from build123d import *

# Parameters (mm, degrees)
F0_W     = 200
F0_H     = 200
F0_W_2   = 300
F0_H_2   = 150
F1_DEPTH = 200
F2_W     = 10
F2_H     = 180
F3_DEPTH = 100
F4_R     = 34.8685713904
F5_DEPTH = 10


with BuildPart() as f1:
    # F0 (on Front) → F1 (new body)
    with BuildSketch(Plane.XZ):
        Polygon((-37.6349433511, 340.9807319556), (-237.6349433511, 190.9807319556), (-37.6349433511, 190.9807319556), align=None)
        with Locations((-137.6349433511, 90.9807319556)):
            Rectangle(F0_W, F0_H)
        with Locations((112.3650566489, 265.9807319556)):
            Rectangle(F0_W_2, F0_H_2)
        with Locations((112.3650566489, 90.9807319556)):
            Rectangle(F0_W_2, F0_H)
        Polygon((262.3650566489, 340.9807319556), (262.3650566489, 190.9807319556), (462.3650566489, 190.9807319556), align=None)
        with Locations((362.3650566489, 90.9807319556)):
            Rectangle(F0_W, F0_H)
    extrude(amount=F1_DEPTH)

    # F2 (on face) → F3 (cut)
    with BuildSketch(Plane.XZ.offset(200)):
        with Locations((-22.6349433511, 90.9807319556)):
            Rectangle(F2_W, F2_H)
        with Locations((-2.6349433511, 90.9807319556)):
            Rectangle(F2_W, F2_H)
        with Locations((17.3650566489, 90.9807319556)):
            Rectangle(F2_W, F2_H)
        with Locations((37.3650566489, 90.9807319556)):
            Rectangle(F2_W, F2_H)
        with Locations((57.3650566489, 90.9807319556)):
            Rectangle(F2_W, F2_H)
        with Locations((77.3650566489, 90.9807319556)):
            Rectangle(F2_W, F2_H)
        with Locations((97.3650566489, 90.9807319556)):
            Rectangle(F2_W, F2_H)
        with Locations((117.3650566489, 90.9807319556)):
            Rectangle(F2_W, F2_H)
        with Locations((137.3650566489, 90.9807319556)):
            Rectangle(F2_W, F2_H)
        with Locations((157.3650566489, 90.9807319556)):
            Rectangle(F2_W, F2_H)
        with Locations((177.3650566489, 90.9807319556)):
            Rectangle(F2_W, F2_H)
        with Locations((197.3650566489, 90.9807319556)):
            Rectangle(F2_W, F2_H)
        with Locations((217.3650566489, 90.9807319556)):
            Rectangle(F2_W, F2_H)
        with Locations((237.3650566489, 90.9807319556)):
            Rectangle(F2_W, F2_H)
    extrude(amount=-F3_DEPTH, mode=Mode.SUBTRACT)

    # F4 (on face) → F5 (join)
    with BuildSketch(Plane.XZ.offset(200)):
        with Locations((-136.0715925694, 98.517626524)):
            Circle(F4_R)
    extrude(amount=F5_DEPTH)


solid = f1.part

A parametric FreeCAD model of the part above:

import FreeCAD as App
import Part
import Sketcher

V = App.Vector
Q = App.Units.Quantity


def add_polygon(sketch, points):
    """Adds a closed chain of lines whose ends are joined by coincident constraints."""
    first, n = sketch.GeometryCount, len(points)
    for a, b in zip(points, points[1:] + points[:1]):
        sketch.addGeometry(Part.LineSegment(App.Vector(*a, 0), App.Vector(*b, 0)), False)
    for i in range(n):
        sketch.addConstraint(Sketcher.Constraint("Coincident", first + i, 2, first + (i + 1) % n, 1))

doc = App.newDocument("Part")
body = doc.addObject("PartDesign::Body", "Body")

# Sketch on XZ plane
sketch1 = body.newObject("Sketcher::SketchObject", "Sketch")
sketch1.AttachmentSupport = (doc.getObject("XZ_Plane"), [""])
sketch1.MapMode = "FlatFace"
add_polygon(sketch1, [(-38, 341), (-238, 191), (-238, -9), (462, -9), (462, 191), (262, 341)])  # lines 0-5
sketch1.addConstraint([
    Sketcher.Constraint("Vertical", 1),
    Sketcher.Constraint("Horizontal", 2),
    Sketcher.Constraint("Vertical", 3),
    Sketcher.Constraint("Horizontal", 5),
    Sketcher.Constraint("Horizontal", 0, 2, 3, 2),
    Sketcher.Constraint("Equal", 0, 4),
    Sketcher.Constraint("DistanceX", 2, 1, 2, 2, Q("700 mm")),
    Sketcher.Constraint("DistanceX", 5, 2, 5, 1, Q("300 mm")),
    Sketcher.Constraint("DistanceY", 1, 2, 1, 1, Q("200 mm")),
    Sketcher.Constraint("Distance", 0, Q("250 mm")),
    Sketcher.Constraint("DistanceY", -1, 1, 0, 2, Q("190.980732 mm")),
    Sketcher.Constraint("DistanceX", 0, 2, -1, 1, Q("237.634943 mm")),
])
pad1 = body.newObject("PartDesign::Pad", "Pad")
pad1.Profile = sketch1
pad1.Length = 200

# Sketch on XZ plane
sketch2 = body.newObject("Sketcher::SketchObject", "Sketch001")
sketch2.AttachmentSupport = (doc.getObject("XZ_Plane"), [""])
sketch2.MapMode = "FlatFace"
sketch2.AttachmentOffset = App.Placement(V(0, 0, 200), App.Rotation())
add_polygon(sketch2, [(-28, 181), (-28, 1), (-18, 1), (-18, 181)])  # lines 0-3
add_polygon(sketch2, [(-8, 181), (-8, 1), (2, 1), (2, 181)])  # lines 4-7
add_polygon(sketch2, [(12, 181), (12, 1), (22, 1), (22, 181)])  # lines 8-11
add_polygon(sketch2, [(32, 181), (32, 1), (42, 1), (42, 181)])  # lines 12-15
add_polygon(sketch2, [(52, 181), (52, 1), (62, 1), (62, 181)])  # lines 16-19
add_polygon(sketch2, [(72, 181), (72, 1), (82, 1), (82, 181)])  # lines 20-23
add_polygon(sketch2, [(92, 181), (92, 1), (102, 1), (102, 181)])  # lines 24-27
add_polygon(sketch2, [(112, 181), (112, 1), (122, 1), (122, 181)])  # lines 28-31
add_polygon(sketch2, [(132, 181), (132, 1), (142, 1), (142, 181)])  # lines 32-35
add_polygon(sketch2, [(152, 181), (152, 1), (162, 1), (162, 181)])  # lines 36-39
add_polygon(sketch2, [(172, 181), (172, 1), (182, 1), (182, 181)])  # lines 40-43
add_polygon(sketch2, [(192, 181), (192, 1), (202, 1), (202, 181)])  # lines 44-47
add_polygon(sketch2, [(212, 181), (212, 1), (222, 1), (222, 181)])  # lines 48-51
add_polygon(sketch2, [(232, 181), (232, 1), (242, 1), (242, 181)])  # lines 52-55
sketch2.addConstraint([
    Sketcher.Constraint("Vertical", 0),
    Sketcher.Constraint("Horizontal", 1),
    Sketcher.Constraint("Vertical", 2),
    Sketcher.Constraint("Horizontal", 3),
    Sketcher.Constraint("Vertical", 4),
    Sketcher.Constraint("Horizontal", 5),
    Sketcher.Constraint("Vertical", 6),
    Sketcher.Constraint("Horizontal", 7),
    Sketcher.Constraint("Vertical", 8),
    Sketcher.Constraint("Horizontal", 9),
    Sketcher.Constraint("Vertical", 10),
    Sketcher.Constraint("Horizontal", 11),
    Sketcher.Constraint("Vertical", 12),
    Sketcher.Constraint("Horizontal", 13),
    Sketcher.Constraint("Vertical", 14),
    Sketcher.Constraint("Horizontal", 15),
    Sketcher.Constraint("Vertical", 16),
    Sketcher.Constraint("Horizontal", 17),
    Sketcher.Constraint("Vertical", 18),
    Sketcher.Constraint("Horizontal", 19),
    Sketcher.Constraint("Vertical", 20),
    Sketcher.Constraint("Horizontal", 21),
    Sketcher.Constraint("Vertical", 22),
    Sketcher.Constraint("Horizontal", 23),
    Sketcher.Constraint("Vertical", 24),
    Sketcher.Constraint("Horizontal", 25),
    Sketcher.Constraint("Vertical", 26),
    Sketcher.Constraint("Horizontal", 27),
    Sketcher.Constraint("Vertical", 28),
    Sketcher.Constraint("Horizontal", 29),
    Sketcher.Constraint("Vertical", 30),
    Sketcher.Constraint("Horizontal", 31),
    Sketcher.Constraint("Vertical", 32),
    Sketcher.Constraint("Horizontal", 33),
    Sketcher.Constraint("Vertical", 34),
    Sketcher.Constraint("Horizontal", 35),
    Sketcher.Constraint("Vertical", 36),
    Sketcher.Constraint("Horizontal", 37),
    Sketcher.Constraint("Vertical", 38),
    Sketcher.Constraint("Horizontal", 39),
    Sketcher.Constraint("Vertical", 40),
    Sketcher.Constraint("Horizontal", 41),
    Sketcher.Constraint("Vertical", 42),
    Sketcher.Constraint("Horizontal", 43),
    Sketcher.Constraint("Vertical", 44),
    Sketcher.Constraint("Horizontal", 45),
    Sketcher.Constraint("Vertical", 46),
    Sketcher.Constraint("Horizontal", 47),
    Sketcher.Constraint("Vertical", 48),
    Sketcher.Constraint("Horizontal", 49),
    Sketcher.Constraint("Vertical", 50),
    Sketcher.Constraint("Horizontal", 51),
    Sketcher.Constraint("Vertical", 52),
    Sketcher.Constraint("Horizontal", 53),
    Sketcher.Constraint("Vertical", 54),
    Sketcher.Constraint("Horizontal", 55),
    Sketcher.Constraint("Horizontal", 1, 2, 4, 2),
    Sketcher.Constraint("Horizontal", 3, 2, 6, 2),
    Sketcher.Constraint("Horizontal", 5, 2, 8, 2),
    Sketcher.Constraint("Horizontal", 7, 2, 10, 2),
    Sketcher.Constraint("Horizontal", 9, 2, 12, 2),
    Sketcher.Constraint("Horizontal", 11, 2, 14, 2),
    Sketcher.Constraint("Horizontal", 13, 2, 16, 2),
    Sketcher.Constraint("Horizontal", 15, 2, 18, 2),
    Sketcher.Constraint("Horizontal", 17, 2, 20, 2),
    Sketcher.Constraint("Horizontal", 19, 2, 22, 2),
    Sketcher.Constraint("Horizontal", 21, 2, 24, 2),
    Sketcher.Constraint("Horizontal", 23, 2, 26, 2),
    Sketcher.Constraint("Horizontal", 25, 2, 28, 2),
    Sketcher.Constraint("Horizontal", 27, 2, 30, 2),
    Sketcher.Constraint("Horizontal", 29, 2, 32, 2),
    Sketcher.Constraint("Horizontal", 31, 2, 34, 2),
    Sketcher.Constraint("Horizontal", 33, 2, 36, 2),
    Sketcher.Constraint("Horizontal", 35, 2, 38, 2),
    Sketcher.Constraint("Horizontal", 37, 2, 40, 2),
    Sketcher.Constraint("Horizontal", 39, 2, 42, 2),
    Sketcher.Constraint("Horizontal", 41, 2, 44, 2),
    Sketcher.Constraint("Horizontal", 43, 2, 46, 2),
    Sketcher.Constraint("Horizontal", 45, 2, 48, 2),
    Sketcher.Constraint("Horizontal", 47, 2, 50, 2),
    Sketcher.Constraint("Horizontal", 49, 2, 52, 2),
    Sketcher.Constraint("Horizontal", 51, 2, 54, 2),
    Sketcher.Constraint("Equal", 3, 5),
    Sketcher.Constraint("Equal", 7, 9),
    Sketcher.Constraint("Equal", 11, 13),
    Sketcher.Constraint("Equal", 15, 17),
    Sketcher.Constraint("Equal", 19, 21),
    Sketcher.Constraint("Equal", 23, 25),
    Sketcher.Constraint("Equal", 27, 29),
    Sketcher.Constraint("Equal", 31, 33),
    Sketcher.Constraint("Equal", 35, 37),
    Sketcher.Constraint("Equal", 39, 41),
    Sketcher.Constraint("Equal", 43, 45),
    Sketcher.Constraint("Equal", 47, 49),
    Sketcher.Constraint("Equal", 51, 53),
    Sketcher.Constraint("DistanceX", 1, 1, 1, 2, Q("10 mm")),
    Sketcher.Constraint("DistanceY", 0, 2, 0, 1, Q("180 mm")),
    Sketcher.Constraint("DistanceX", 1, 2, 4, 2, Q("10 mm")),
    Sketcher.Constraint("DistanceX", 5, 2, 8, 2, Q("10 mm")),
    Sketcher.Constraint("DistanceX", 9, 2, 12, 2, Q("10 mm")),
    Sketcher.Constraint("DistanceX", 13, 2, 16, 2, Q("10 mm")),
    Sketcher.Constraint("DistanceX", 17, 2, 20, 2, Q("10 mm")),
    Sketcher.Constraint("DistanceX", 21, 2, 24, 2, Q("10 mm")),
    Sketcher.Constraint("DistanceX", 25, 2, 28, 2, Q("10 mm")),
    Sketcher.Constraint("DistanceX", 29, 2, 32, 2, Q("10 mm")),
    Sketcher.Constraint("DistanceX", 33, 2, 36, 2, Q("10 mm")),
    Sketcher.Constraint("DistanceX", 37, 2, 40, 2, Q("10 mm")),
    Sketcher.Constraint("DistanceX", 41, 2, 44, 2, Q("10 mm")),
    Sketcher.Constraint("DistanceX", 45, 2, 48, 2, Q("10 mm")),
    Sketcher.Constraint("DistanceX", 49, 2, 52, 2, Q("10 mm")),
    Sketcher.Constraint("DistanceY", -1, 1, 0, 2, Q("0.980732 mm")),
    Sketcher.Constraint("DistanceX", 0, 2, -1, 1, Q("27.634943 mm")),
])
pocket1 = body.newObject("PartDesign::Pocket", "Pocket")
pocket1.Profile = sketch2
pocket1.Length = 100

# Sketch on XZ plane
sketch3 = body.newObject("Sketcher::SketchObject", "Sketch002")
sketch3.AttachmentSupport = (doc.getObject("XZ_Plane"), [""])
sketch3.MapMode = "FlatFace"
sketch3.AttachmentOffset = App.Placement(V(0, 0, 200), App.Rotation())
sketch3.addGeometry(Part.Circle(V(-136, 99, 0), V(0, 0, 1), 35), False)
sketch3.addConstraint([
    Sketcher.Constraint("Diameter", 0, Q("69.737143 mm")),
    Sketcher.Constraint("DistanceX", 0, 3, -1, 1, Q("136.071593 mm")),
    Sketcher.Constraint("DistanceY", -1, 1, 0, 3, Q("98.517627 mm")),
])
pad2 = body.newObject("PartDesign::Pad", "Pad001")
pad2.Profile = sketch3
pad2.Length = 10

doc.recompute()
